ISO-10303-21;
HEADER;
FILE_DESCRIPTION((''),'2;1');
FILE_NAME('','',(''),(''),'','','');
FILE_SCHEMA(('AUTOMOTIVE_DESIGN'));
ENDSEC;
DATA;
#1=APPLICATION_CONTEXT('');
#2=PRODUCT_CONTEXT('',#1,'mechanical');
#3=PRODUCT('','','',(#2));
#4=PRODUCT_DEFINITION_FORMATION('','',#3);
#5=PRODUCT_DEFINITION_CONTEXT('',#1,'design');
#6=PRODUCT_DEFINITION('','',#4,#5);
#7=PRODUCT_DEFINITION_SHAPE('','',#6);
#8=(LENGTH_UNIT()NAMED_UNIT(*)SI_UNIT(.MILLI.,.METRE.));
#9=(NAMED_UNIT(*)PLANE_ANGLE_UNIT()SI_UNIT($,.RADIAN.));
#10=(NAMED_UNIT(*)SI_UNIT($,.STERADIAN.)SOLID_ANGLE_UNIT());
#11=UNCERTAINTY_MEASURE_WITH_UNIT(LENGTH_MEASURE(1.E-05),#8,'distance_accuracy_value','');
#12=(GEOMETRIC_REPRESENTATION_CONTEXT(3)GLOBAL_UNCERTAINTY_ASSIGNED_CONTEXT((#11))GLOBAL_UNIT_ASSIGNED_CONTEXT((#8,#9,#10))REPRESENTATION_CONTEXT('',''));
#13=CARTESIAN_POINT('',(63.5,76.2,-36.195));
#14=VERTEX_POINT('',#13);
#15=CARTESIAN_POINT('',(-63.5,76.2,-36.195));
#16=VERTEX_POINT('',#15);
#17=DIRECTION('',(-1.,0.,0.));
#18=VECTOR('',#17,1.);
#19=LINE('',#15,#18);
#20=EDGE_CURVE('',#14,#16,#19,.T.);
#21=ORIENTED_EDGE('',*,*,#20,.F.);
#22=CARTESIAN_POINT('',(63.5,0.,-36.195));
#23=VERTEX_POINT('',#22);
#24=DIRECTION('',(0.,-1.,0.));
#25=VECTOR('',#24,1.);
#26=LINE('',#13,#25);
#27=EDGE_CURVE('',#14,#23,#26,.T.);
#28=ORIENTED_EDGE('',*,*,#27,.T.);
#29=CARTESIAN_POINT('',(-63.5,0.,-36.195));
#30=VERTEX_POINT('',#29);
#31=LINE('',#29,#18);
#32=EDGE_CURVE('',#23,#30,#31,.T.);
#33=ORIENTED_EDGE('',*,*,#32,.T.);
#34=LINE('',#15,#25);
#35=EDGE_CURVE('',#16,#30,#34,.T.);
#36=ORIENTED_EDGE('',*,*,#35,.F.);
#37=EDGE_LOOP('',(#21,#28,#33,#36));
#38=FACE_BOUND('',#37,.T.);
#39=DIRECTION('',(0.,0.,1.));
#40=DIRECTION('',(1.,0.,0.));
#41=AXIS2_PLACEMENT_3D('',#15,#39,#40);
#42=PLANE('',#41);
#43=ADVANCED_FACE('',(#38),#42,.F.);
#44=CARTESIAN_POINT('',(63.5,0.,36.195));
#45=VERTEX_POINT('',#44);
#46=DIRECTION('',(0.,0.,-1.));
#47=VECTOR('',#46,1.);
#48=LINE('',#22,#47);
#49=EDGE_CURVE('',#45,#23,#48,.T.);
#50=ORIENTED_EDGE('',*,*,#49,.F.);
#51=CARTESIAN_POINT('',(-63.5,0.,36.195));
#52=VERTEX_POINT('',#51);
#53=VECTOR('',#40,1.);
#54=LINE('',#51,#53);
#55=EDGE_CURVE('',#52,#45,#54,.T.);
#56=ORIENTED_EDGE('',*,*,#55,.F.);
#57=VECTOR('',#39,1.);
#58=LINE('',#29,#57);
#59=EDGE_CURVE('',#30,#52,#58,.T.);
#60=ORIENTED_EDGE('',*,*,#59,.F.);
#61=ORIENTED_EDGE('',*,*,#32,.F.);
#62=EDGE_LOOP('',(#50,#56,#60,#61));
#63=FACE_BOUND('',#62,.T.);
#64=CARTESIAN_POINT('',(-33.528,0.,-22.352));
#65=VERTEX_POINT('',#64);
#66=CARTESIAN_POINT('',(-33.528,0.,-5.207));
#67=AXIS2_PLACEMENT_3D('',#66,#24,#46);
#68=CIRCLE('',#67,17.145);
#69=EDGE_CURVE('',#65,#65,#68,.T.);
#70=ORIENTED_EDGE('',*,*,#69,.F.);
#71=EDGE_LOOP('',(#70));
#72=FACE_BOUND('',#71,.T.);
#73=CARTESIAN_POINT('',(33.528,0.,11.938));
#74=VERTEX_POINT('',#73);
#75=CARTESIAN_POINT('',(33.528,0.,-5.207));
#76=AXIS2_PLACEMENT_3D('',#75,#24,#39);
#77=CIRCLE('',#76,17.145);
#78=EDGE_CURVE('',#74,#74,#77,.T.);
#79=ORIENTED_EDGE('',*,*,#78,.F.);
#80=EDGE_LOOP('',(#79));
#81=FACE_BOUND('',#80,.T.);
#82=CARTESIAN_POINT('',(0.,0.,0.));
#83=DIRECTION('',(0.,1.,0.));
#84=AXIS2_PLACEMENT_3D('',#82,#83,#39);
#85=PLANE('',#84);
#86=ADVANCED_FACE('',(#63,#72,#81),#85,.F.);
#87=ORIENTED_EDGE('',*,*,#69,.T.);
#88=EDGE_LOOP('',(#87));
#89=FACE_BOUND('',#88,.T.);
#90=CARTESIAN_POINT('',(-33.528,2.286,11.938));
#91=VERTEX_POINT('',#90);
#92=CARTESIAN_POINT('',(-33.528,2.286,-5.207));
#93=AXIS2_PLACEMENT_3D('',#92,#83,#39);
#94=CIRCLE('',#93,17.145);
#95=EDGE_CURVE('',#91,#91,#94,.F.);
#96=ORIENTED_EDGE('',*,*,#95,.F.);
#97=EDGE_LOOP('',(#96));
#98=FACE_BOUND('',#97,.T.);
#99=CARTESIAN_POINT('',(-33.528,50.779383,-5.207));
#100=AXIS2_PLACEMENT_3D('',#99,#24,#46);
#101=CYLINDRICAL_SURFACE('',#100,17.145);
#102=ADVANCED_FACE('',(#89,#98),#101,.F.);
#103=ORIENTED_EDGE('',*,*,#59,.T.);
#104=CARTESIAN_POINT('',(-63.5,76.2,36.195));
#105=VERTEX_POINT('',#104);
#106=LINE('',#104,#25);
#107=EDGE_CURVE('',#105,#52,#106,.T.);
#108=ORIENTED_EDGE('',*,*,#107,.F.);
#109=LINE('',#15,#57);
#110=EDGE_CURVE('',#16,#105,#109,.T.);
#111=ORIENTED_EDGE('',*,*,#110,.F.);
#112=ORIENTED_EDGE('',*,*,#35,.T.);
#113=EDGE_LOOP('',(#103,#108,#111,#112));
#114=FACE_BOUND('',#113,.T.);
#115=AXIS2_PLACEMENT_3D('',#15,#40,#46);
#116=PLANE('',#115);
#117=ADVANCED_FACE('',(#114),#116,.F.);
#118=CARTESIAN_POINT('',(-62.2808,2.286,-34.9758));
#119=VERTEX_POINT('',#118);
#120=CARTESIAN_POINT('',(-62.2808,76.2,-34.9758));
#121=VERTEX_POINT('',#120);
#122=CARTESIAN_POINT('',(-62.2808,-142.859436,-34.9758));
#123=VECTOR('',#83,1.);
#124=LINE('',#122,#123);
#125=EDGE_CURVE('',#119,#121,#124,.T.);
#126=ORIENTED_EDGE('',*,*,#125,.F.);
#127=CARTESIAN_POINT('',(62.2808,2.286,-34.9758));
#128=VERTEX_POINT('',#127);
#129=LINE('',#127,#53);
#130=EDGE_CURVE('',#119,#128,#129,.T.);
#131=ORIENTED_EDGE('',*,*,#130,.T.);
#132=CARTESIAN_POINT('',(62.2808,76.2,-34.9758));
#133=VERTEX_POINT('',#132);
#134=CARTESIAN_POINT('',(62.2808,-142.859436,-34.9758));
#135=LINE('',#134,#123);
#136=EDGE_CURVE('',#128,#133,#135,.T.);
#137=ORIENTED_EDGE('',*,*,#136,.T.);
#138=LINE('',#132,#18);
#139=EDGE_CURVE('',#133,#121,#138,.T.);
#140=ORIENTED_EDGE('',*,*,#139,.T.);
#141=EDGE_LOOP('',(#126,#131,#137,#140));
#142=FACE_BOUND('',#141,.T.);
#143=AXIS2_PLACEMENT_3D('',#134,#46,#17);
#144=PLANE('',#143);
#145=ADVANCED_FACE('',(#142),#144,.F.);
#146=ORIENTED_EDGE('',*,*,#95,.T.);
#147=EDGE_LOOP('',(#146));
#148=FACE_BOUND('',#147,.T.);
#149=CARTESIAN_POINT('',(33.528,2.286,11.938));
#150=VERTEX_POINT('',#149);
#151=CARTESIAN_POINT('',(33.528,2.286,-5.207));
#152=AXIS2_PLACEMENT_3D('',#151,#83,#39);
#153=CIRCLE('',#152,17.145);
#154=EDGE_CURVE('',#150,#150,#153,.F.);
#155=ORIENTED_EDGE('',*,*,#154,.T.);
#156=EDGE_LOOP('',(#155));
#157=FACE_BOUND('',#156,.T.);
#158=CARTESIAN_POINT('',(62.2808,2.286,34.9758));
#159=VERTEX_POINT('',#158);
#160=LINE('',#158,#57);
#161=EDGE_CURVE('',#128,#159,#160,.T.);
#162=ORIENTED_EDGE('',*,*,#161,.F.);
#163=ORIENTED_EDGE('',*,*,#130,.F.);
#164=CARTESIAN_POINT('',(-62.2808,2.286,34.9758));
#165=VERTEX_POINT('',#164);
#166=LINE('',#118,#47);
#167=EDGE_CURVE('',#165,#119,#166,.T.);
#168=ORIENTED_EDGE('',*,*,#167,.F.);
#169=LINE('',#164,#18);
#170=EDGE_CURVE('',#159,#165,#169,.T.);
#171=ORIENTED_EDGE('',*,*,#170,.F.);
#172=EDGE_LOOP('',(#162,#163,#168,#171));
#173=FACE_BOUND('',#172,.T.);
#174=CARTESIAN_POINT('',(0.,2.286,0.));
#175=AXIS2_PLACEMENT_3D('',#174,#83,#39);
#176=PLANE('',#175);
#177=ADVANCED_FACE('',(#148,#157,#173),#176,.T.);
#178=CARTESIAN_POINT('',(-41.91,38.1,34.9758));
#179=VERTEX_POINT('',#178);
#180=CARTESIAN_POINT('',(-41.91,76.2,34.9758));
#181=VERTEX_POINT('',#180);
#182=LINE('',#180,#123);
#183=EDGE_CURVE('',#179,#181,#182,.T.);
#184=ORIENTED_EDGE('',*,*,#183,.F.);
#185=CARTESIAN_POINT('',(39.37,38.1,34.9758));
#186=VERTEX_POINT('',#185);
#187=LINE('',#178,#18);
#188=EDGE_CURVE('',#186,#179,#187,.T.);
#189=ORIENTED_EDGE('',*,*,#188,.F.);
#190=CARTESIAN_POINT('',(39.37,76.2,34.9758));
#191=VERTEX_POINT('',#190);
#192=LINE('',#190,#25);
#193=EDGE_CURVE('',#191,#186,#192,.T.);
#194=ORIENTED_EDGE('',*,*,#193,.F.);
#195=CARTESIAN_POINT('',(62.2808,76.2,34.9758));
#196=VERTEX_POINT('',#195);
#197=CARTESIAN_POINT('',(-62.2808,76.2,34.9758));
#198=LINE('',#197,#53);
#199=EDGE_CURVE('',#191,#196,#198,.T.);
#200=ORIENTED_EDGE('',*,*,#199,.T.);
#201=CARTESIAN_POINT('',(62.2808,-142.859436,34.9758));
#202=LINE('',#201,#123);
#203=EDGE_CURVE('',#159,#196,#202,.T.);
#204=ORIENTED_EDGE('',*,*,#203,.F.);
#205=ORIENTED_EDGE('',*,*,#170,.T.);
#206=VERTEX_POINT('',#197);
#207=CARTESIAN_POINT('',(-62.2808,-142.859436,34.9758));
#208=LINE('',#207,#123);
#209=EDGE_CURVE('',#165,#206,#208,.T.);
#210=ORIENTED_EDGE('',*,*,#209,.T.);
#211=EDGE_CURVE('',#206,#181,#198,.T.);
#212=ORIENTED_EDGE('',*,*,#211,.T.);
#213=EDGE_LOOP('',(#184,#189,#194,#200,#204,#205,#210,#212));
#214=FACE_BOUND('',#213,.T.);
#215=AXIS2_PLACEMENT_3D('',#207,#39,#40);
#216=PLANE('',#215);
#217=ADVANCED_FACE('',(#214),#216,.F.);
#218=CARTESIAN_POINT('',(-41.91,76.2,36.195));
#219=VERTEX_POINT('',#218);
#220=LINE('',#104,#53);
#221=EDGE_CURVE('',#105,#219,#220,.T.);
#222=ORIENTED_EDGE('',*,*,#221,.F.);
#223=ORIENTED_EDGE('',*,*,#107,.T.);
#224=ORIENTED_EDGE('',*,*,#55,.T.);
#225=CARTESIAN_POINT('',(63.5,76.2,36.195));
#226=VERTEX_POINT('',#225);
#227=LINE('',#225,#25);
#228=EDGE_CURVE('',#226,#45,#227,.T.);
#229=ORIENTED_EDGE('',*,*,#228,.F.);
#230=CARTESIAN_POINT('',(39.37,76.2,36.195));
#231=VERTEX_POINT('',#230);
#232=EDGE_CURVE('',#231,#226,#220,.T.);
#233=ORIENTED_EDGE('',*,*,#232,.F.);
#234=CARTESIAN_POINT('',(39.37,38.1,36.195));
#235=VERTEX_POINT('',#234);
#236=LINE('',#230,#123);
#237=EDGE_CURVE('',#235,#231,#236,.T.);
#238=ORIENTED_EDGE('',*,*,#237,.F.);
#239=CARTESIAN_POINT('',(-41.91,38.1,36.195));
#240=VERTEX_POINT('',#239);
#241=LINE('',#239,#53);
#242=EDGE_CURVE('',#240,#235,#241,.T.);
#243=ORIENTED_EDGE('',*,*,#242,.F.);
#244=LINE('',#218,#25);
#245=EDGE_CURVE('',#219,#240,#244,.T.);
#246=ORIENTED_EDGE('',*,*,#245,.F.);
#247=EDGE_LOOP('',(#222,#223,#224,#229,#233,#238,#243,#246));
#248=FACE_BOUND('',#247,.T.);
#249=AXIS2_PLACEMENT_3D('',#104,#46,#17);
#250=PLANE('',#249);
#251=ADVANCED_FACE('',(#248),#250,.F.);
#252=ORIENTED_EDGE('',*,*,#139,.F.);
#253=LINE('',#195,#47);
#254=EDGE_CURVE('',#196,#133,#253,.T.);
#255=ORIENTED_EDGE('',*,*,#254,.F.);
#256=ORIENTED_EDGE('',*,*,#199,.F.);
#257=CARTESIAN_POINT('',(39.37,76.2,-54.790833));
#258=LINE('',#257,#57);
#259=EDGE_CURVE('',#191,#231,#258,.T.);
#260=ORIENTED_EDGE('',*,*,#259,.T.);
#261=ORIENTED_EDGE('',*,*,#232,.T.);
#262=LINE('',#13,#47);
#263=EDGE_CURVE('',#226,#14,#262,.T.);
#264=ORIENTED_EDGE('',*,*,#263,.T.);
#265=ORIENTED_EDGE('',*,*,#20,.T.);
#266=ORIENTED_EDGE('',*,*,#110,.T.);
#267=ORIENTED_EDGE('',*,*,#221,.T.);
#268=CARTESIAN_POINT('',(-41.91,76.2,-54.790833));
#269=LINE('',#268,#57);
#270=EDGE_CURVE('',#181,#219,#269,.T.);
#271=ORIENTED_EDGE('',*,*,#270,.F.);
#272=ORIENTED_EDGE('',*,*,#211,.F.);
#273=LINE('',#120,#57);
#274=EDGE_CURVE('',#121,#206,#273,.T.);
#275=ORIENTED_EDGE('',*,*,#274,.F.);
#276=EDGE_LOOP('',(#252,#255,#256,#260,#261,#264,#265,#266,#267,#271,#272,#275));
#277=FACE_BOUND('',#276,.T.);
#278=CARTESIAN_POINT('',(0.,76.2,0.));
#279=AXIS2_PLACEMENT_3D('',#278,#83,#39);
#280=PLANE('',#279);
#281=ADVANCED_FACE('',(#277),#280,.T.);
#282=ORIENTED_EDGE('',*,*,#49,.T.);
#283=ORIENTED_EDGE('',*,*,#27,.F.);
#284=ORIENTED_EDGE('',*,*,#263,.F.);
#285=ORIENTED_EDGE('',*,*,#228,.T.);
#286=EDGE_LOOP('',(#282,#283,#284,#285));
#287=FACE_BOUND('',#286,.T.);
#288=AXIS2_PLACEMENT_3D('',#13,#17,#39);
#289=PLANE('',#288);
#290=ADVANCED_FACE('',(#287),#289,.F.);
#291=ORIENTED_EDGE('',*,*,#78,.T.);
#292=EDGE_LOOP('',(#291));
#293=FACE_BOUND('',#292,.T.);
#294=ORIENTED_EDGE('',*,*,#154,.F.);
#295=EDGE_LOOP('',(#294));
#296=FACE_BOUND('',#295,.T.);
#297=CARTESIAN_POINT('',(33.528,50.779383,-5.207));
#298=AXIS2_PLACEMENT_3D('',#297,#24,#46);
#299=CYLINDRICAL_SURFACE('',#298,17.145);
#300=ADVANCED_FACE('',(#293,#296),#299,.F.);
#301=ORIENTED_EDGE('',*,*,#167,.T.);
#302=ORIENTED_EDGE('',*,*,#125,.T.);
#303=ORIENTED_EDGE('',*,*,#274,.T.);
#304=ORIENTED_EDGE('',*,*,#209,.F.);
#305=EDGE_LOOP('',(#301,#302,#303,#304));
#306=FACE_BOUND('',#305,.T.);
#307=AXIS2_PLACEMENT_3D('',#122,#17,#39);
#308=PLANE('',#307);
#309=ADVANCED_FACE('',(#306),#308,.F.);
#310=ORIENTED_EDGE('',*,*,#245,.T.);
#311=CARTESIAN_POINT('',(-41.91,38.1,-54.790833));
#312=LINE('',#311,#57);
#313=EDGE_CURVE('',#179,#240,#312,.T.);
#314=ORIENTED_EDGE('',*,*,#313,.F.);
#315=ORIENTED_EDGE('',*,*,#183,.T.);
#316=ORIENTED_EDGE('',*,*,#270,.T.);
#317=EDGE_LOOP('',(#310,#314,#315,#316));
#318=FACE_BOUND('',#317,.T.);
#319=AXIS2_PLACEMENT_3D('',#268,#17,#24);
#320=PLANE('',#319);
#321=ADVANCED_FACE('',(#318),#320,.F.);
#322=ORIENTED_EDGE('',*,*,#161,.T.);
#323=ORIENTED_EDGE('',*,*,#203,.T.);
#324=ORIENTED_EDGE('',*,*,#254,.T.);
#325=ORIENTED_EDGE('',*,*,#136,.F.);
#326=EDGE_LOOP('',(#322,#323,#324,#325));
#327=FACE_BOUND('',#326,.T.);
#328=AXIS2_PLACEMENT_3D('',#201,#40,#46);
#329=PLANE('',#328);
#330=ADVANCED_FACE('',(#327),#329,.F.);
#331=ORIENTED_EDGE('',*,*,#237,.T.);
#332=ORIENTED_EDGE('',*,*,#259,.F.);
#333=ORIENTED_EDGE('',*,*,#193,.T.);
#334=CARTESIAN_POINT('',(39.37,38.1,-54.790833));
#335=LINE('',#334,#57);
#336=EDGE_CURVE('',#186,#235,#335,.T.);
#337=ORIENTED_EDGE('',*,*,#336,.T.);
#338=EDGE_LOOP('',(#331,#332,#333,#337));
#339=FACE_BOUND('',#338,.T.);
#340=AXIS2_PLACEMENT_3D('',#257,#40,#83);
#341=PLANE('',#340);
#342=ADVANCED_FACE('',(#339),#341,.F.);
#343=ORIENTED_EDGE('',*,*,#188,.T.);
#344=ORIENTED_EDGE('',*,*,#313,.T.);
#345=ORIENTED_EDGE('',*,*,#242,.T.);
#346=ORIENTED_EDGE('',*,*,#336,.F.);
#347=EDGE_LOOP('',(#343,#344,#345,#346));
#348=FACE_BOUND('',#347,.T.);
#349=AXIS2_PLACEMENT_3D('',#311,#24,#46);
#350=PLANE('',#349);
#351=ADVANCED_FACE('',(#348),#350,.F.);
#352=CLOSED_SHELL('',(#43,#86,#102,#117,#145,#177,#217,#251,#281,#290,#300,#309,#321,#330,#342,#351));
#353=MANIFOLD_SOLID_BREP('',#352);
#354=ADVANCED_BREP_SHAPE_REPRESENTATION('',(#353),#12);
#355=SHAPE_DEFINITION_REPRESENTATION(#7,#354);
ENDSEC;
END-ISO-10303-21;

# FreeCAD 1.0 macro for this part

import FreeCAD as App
import Part
import Sketcher
from FreeCAD import Vector
Q = App.Units.Quantity

doc = App.newDocument("Part")
body = doc.addObject("PartDesign::Body", "Body")

sketch1 = doc.addObject("Sketcher::SketchObject", "Sketch")
body.addObject(sketch1)
sketch1.AttachmentSupport = (doc.XZ_Plane, [""])
sketch1.MapMode = "FlatFace"
sketch1.addGeometry(Part.LineSegment(Vector(-64, -36, 0), Vector(-64, 36, 0)), False)
sketch1.addGeometry(Part.LineSegment(Vector(-64, 36, 0), Vector(64, 36, 0)), False)
sketch1.addGeometry(Part.LineSegment(Vector(64, 36, 0), Vector(64, -36, 0)), False)
sketch1.addGeometry(Part.LineSegment(Vector(64, -36, 0), Vector(-64, -36, 0)), False)
sketch1.addConstraint(Sketcher.Constraint("Coincident", 0, 2, 1, 1))
sketch1.addConstraint(Sketcher.Constraint("Coincident", 1, 2, 2, 1))
sketch1.addConstraint(Sketcher.Constraint("Coincident", 2, 2, 3, 1))
sketch1.addConstraint(Sketcher.Constraint("Coincident", 3, 2, 0, 1))
sketch1.addConstraint(Sketcher.Constraint("Vertical", 0))
sketch1.addConstraint(Sketcher.Constraint("Horizontal", 1))
sketch1.addConstraint(Sketcher.Constraint("Vertical", 2))
sketch1.addConstraint(Sketcher.Constraint("Horizontal", 3))
sketch1.addConstraint(Sketcher.Constraint("Symmetric", 0, 2, 2, 2, -1, 1))
sketch1.addConstraint(Sketcher.Constraint("DistanceX", 1, 1, 1, 2, Q("5 in")))
sketch1.addConstraint(Sketcher.Constraint("DistanceY", 0, 1, 0, 2, Q("2.85 in")))
pad1 = doc.addObject("PartDesign::Pad", "Pad")
body.addObject(pad1)
pad1.Profile = sketch1
pad1.Length = Q("3 in")
pad1.Reversed = True

sketch2 = doc.addObject("Sketcher::SketchObject", "Sketch001")
body.addObject(sketch2)
sketch2.AttachmentSupport = (doc.XZ_Plane, [""])
sketch2.MapMode = "FlatFace"
sketch2.AttachmentOffset = App.Placement(Vector(0, 0, -3 * 25.4), App.Rotation())
sketch2.addGeometry(Part.LineSegment(Vector(-62, -35, 0), Vector(-62, 35, 0)), False)
sketch2.addGeometry(Part.LineSegment(Vector(-62, 35, 0), Vector(62, 35, 0)), False)
sketch2.addGeometry(Part.LineSegment(Vector(62, 35, 0), Vector(62, -35, 0)), False)
sketch2.addGeometry(Part.LineSegment(Vector(62, -35, 0), Vector(-62, -35, 0)), False)
sketch2.addConstraint(Sketcher.Constraint("Coincident", 0, 2, 1, 1))
sketch2.addConstraint(Sketcher.Constraint("Coincident", 1, 2, 2, 1))
sketch2.addConstraint(Sketcher.Constraint("Coincident", 2, 2, 3, 1))
sketch2.addConstraint(Sketcher.Constraint("Coincident", 3, 2, 0, 1))
sketch2.addConstraint(Sketcher.Constraint("Vertical", 0))
sketch2.addConstraint(Sketcher.Constraint("Horizontal", 1))
sketch2.addConstraint(Sketcher.Constraint("Vertical", 2))
sketch2.addConstraint(Sketcher.Constraint("Horizontal", 3))
sketch2.addConstraint(Sketcher.Constraint("Symmetric", 0, 2, 2, 2, -1, 1))
sketch2.addConstraint(Sketcher.Constraint("DistanceX", 1, 1, 1, 2, Q("4.904 in")))
sketch2.addConstraint(Sketcher.Constraint("DistanceY", 0, 1, 0, 2, Q("2.754 in")))
pocket1 = doc.addObject("PartDesign::Pocket", "Pocket")
body.addObject(pocket1)
pocket1.Profile = sketch2
pocket1.Length = Q("2.91 in")
pocket1.Reversed = True

sketch3 = doc.addObject("Sketcher::SketchObject", "Sketch002")
body.addObject(sketch3)
sketch3.AttachmentSupport = (doc.XY_Plane, [""])
sketch3.MapMode = "FlatFace"
sketch3.AttachmentOffset = App.Placement(Vector(0, 0, 1.425 * 25.4), App.Rotation())
sketch3.addGeometry(Part.LineSegment(Vector(-42, 76, 0), Vector(-42, 38, 0)), False)
sketch3.addGeometry(Part.LineSegment(Vector(-42, 38, 0), Vector(39, 38, 0)), False)
sketch3.addGeometry(Part.LineSegment(Vector(39, 38, 0), Vector(39, 76, 0)), False)
sketch3.addGeometry(Part.LineSegment(Vector(39, 76, 0), Vector(-42, 76, 0)), False)
sketch3.addConstraint(Sketcher.Constraint("Coincident", 0, 2, 1, 1))
sketch3.addConstraint(Sketcher.Constraint("Coincident", 1, 2, 2, 1))
sketch3.addConstraint(Sketcher.Constraint("Coincident", 2, 2, 3, 1))
sketch3.addConstraint(Sketcher.Constraint("Coincident", 3, 2, 0, 1))
sketch3.addConstraint(Sketcher.Constraint("Vertical", 0))
sketch3.addConstraint(Sketcher.Constraint("Horizontal", 1))
sketch3.addConstraint(Sketcher.Constraint("Vertical", 2))
sketch3.addConstraint(Sketcher.Constraint("Horizontal", 3))
sketch3.addConstraint(Sketcher.Constraint("DistanceX", 1, 1, 1, 2, Q("3.2 in")))
sketch3.addConstraint(Sketcher.Constraint("DistanceY", 0, 2, 0, 1, Q("1.5 in")))
sketch3.addConstraint(Sketcher.Constraint("DistanceY", -1, 1, 2, 2, Q("3 in")))
sketch3.addConstraint(Sketcher.Constraint("DistanceX", 0, 2, -1, 1, Q("1.65 in")))
pocket2 = doc.addObject("PartDesign::Pocket", "Pocket001")
body.addObject(pocket2)
pocket2.Profile = sketch3
pocket2.Length = Q("0.048 in")

sketch4 = doc.addObject("Sketcher::SketchObject", "Sketch003")
body.addObject(sketch4)
sketch4.AttachmentSupport = (doc.XZ_Plane, [""])
sketch4.MapMode = "FlatFace"
sketch4.addGeometry(Part.Circle(Vector(-34, -5, 0), Vector(0, 0, 1), 17), False)
sketch4.addGeometry(Part.Circle(Vector(34, -5, 0), Vector(0, 0, 1), 17), False)
sketch4.addConstraint(Sketcher.Constraint("Equal", 0, 1))
sketch4.addConstraint(Sketcher.Constraint("Symmetric", 0, 3, 1, 3, -2))
sketch4.addConstraint(Sketcher.Constraint("Diameter", 0, Q("1.35 in")))
sketch4.addConstraint(Sketcher.Constraint("DistanceX", 0, 3, -1, 1, Q("1.32 in")))
sketch4.addConstraint(Sketcher.Constraint("DistanceY", 0, 3, -1, 1, Q("0.205 in")))
pocket3 = doc.addObject("PartDesign::Pocket", "Pocket002")
body.addObject(pocket3)
pocket3.Profile = sketch4
pocket3.Length = Q("0.09 in")

doc.recompute()
